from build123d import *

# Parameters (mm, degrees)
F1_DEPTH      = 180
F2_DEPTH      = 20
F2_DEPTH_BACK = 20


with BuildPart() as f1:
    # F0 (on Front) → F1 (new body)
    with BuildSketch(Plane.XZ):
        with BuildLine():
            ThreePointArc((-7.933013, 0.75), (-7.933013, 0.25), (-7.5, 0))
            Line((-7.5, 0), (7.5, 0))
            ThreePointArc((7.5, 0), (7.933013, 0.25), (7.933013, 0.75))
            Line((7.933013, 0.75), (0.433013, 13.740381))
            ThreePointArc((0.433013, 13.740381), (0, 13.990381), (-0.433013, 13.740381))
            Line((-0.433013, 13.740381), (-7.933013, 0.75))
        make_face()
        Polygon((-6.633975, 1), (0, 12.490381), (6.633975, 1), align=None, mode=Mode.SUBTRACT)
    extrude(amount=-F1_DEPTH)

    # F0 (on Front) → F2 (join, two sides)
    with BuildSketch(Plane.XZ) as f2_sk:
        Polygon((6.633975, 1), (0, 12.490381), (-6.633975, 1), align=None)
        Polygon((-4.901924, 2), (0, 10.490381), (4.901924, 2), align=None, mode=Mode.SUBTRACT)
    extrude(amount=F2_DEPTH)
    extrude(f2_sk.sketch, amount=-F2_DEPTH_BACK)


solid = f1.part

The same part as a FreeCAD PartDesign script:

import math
import FreeCAD as App
import Part
import Sketcher
Q = App.Units.Quantity

doc = App.newDocument("Part")
params = doc.addObject("Spreadsheet::Sheet", "Params")
for row, (alias, value) in enumerate([
    ("sketch1_radius", "0.5 mm"),
    ("sketch1_width", "15 mm"),
    ("pad1_length", "180 mm"),
    ("pad2_length", "20 mm"),
    ("pad2_length2", "20 mm"),
], start=1):
    params.set(f"A{row}", alias)
    params.set(f"B{row}", "=" + value)
    params.setAlias(f"B{row}", alias)

body = doc.addObject("PartDesign::Body", "Body")

sketch1 = body.newObject("Sketcher::SketchObject", "Sketch")
sketch1.AttachmentSupport = (doc.getObject("XZ_Plane"), [""])
sketch1.MapMode = "FlatFace"
sketch1.addGeometry([
    Part.ArcOfCircle(Part.Circle(App.Vector(-7.5, 0.5, 0), App.Vector(0, 0, 1), 0.5), math.radians(150), math.radians(270)),
    Part.LineSegment(App.Vector(-7.5, 0, 0), App.Vector(7.5, 0, 0)),
    Part.ArcOfCircle(Part.Circle(App.Vector(7.5, 0.5, 0), App.Vector(0, 0, 1), 0.5), math.radians(-90), math.radians(30)),
    Part.LineSegment(App.Vector(7.9, 0.8, 0), App.Vector(0.4, 13.7, 0)),
    Part.ArcOfCircle(Part.Circle(App.Vector(0, 13.5, 0), App.Vector(0, 0, 1), 0.5), math.radians(30), math.radians(150)),
    Part.LineSegment(App.Vector(-0.4, 13.7, 0), App.Vector(-7.9, 0.8, 0)),
    Part.LineSegment(App.Vector(6.6, 1, 0), App.Vector(-6.6, 1, 0)),
    Part.LineSegment(App.Vector(-6.6, 1, 0), App.Vector(0, 12.5, 0)),
    Part.LineSegment(App.Vector(0, 12.5, 0), App.Vector(6.6, 1, 0)),
], False)
sketch1.addConstraint([
    Sketcher.Constraint("Tangent", 0, 2, 1, 1),
    Sketcher.Constraint("Tangent", 1, 2, 2, 1),
    Sketcher.Constraint("Tangent", 2, 2, 3, 1),
    Sketcher.Constraint("Tangent", 3, 2, 4, 1),
    Sketcher.Constraint("Tangent", 4, 2, 5, 1),
    Sketcher.Constraint("Tangent", 5, 2, 0, 1),
    Sketcher.Constraint("Coincident", 6, 2, 7, 1),
    Sketcher.Constraint("Coincident", 7, 2, 8, 1),
    Sketcher.Constraint("Coincident", 8, 2, 6, 1),
    Sketcher.Constraint("Horizontal", 1),
    Sketcher.Constraint("Horizontal", 6),
    Sketcher.Constraint("Equal", 0, 2),
    Sketcher.Constraint("Equal", 2, 4),
    Sketcher.Constraint("Symmetric", 0, 2, 1, 2, -1, 1),
    Sketcher.Constraint("PointOnObject", 4, 3, -2),
    Sketcher.Constraint("PointOnObject", 7, 2, -2),
    Sketcher.Constraint("Parallel", 5, 7),
    Sketcher.Constraint("Parallel", 3, 8),
    Sketcher.Constraint("Radius", 0, Q("0.5 mm")),
    Sketcher.Constraint("DistanceX", 1, 1, 1, 2, Q("15 mm")),
    Sketcher.Constraint("Angle", 3, Q("120 deg")),
    Sketcher.Constraint("DistanceY", -1, 1, 6, 2, Q("1 mm")),
    Sketcher.Constraint("DistanceY", 7, 2, 4, 3, Q("0.999999 mm")),
])
sketch1.setExpression("Constraints[18]", "Params.sketch1_radius")
sketch1.setExpression("Constraints[19]", "Params.sketch1_width")
pad1 = body.newObject("PartDesign::Pad", "Pad")
pad1.Profile = sketch1
pad1.setExpression("Length", "Params.pad1_length")
pad1.Reversed = True

sketch2 = body.newObject("Sketcher::SketchObject", "Sketch001")
sketch2.AttachmentSupport = (doc.getObject("XZ_Plane"), [""])
sketch2.MapMode = "FlatFace"
sketch2.addGeometry([
    Part.LineSegment(App.Vector(7, 1, 0), App.Vector(0, 12, 0)),
    Part.LineSegment(App.Vector(0, 12, 0), App.Vector(-7, 1, 0)),
    Part.LineSegment(App.Vector(-7, 1, 0), App.Vector(7, 1, 0)),
    Part.LineSegment(App.Vector(5, 2, 0), App.Vector(-5, 2, 0)),
    Part.LineSegment(App.Vector(-5, 2, 0), App.Vector(0, 10, 0)),
    Part.LineSegment(App.Vector(0, 10, 0), App.Vector(5, 2, 0)),
], False)
sketch2.addConstraint([
    Sketcher.Constraint("Coincident", 0, 2, 1, 1),
    Sketcher.Constraint("Coincident", 1, 2, 2, 1),
    Sketcher.Constraint("Coincident", 2, 2, 0, 1),
    Sketcher.Constraint("Coincident", 3, 2, 4, 1),
    Sketcher.Constraint("Coincident", 4, 2, 5, 1),
    Sketcher.Constraint("Coincident", 5, 2, 3, 1),
    Sketcher.Constraint("Horizontal", 2),
    Sketcher.Constraint("Horizontal", 3),
    Sketcher.Constraint("PointOnObject", 0, 2, -2),
    Sketcher.Constraint("PointOnObject", 4, 2, -2),
    Sketcher.Constraint("Parallel", 1, 4),
    Sketcher.Constraint("Parallel", 0, 5),
    Sketcher.Constraint("Equal", 0, 1),
    Sketcher.Constraint("Angle", 0, Q("120.000002 deg")),
    Sketcher.Constraint("DistanceY", -1, 1, 1, 2, Q("1 mm")),
    Sketcher.Constraint("DistanceY", -1, 1, 3, 2, Q("2 mm")),
    Sketcher.Constraint("DistanceY", 4, 2, 0, 2, Q("2 mm")),
    Sketcher.Constraint("DistanceX", 2, 1, 2, 2, Q("13.26795 mm")),
])
pad2 = body.newObject("PartDesign::Pad", "Pad001")
pad2.Profile = sketch2
pad2.Type = "TwoLengths"
pad2.setExpression("Length", "Params.pad2_length")
pad2.setExpression("Length2", "Params.pad2_length2")

doc.recompute()
